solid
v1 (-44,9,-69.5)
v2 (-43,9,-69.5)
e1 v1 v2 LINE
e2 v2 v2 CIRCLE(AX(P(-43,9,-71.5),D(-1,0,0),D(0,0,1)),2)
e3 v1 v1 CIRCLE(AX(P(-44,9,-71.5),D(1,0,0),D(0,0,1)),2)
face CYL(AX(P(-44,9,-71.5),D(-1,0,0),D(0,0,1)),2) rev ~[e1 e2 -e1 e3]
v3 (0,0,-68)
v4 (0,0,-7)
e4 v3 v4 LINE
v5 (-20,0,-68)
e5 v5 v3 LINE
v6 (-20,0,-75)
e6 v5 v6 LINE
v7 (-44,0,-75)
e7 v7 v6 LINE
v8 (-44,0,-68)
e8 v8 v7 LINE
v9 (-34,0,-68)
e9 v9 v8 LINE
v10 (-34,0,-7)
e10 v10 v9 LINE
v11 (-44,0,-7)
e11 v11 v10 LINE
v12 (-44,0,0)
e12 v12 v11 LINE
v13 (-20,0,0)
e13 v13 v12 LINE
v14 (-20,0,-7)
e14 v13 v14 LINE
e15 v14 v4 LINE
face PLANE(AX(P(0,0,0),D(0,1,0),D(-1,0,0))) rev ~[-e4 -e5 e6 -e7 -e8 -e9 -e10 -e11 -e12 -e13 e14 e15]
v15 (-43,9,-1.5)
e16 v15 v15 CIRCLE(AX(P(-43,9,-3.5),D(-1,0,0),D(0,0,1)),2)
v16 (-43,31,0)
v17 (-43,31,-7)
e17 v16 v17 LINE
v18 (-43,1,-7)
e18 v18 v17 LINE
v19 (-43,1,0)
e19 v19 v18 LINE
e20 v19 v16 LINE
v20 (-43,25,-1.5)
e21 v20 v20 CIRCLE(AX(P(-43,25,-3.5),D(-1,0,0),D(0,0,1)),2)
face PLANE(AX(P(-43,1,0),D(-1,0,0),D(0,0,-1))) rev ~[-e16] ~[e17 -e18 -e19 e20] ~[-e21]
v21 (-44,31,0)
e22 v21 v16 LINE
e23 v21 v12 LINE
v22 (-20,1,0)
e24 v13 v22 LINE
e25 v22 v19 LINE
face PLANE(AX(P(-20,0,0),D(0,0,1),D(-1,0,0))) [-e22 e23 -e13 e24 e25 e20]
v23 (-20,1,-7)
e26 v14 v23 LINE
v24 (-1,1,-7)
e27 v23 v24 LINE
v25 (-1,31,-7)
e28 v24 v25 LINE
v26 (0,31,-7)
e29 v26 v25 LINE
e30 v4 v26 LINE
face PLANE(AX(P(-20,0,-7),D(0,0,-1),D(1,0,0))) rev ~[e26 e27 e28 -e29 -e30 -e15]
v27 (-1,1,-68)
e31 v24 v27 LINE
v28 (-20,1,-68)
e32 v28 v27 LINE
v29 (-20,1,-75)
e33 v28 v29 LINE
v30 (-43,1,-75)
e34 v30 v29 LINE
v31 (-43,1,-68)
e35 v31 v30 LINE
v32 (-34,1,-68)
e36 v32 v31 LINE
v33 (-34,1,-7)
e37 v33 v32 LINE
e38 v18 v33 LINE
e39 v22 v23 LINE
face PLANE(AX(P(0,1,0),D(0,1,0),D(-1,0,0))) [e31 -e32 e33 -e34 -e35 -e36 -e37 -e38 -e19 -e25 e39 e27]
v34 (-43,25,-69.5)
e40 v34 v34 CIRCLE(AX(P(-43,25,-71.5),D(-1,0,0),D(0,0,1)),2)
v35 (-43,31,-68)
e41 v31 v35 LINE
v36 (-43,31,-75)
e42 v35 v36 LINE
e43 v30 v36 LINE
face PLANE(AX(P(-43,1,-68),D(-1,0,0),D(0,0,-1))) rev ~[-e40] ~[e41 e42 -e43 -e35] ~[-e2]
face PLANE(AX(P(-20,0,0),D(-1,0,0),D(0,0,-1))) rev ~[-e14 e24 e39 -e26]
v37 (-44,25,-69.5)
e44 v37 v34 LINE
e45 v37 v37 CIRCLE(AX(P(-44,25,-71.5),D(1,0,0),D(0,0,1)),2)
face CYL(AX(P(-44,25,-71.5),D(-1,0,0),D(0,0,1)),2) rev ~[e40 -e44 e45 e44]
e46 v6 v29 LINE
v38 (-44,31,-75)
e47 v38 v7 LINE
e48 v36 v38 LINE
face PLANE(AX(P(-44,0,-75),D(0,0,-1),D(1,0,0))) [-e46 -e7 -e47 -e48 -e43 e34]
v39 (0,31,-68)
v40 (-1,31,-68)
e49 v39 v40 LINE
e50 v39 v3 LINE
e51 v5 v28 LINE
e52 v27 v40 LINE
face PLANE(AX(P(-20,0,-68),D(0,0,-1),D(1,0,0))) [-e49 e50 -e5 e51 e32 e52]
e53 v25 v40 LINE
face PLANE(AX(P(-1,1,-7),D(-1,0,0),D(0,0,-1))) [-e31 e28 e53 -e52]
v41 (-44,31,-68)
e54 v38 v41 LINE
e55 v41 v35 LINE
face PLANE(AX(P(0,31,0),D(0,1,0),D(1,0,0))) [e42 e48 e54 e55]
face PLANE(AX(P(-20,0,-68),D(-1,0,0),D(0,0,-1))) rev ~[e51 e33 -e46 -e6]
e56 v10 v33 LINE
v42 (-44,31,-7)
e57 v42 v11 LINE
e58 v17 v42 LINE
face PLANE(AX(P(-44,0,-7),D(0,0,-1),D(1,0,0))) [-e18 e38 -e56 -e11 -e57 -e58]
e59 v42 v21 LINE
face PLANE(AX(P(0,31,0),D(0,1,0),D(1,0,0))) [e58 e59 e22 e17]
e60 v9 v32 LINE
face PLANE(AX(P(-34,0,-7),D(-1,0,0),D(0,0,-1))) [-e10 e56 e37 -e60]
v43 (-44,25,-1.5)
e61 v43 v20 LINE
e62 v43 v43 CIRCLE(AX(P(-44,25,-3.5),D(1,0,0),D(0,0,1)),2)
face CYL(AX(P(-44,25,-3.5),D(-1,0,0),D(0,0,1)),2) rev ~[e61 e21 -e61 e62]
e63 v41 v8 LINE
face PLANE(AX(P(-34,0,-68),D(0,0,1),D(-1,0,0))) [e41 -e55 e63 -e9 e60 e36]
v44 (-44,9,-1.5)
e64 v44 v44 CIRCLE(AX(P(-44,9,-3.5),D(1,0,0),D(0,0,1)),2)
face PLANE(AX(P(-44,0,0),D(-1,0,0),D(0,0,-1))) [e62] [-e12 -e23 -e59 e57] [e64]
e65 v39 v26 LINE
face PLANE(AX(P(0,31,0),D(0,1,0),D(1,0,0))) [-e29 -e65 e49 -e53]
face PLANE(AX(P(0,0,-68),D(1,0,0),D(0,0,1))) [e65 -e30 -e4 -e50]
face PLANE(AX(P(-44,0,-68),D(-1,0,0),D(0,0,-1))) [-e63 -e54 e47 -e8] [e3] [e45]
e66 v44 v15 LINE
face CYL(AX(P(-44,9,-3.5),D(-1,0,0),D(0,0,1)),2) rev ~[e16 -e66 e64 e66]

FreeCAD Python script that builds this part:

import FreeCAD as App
import Part
import Sketcher

V = App.Vector


def add_polygon(sketch, points):
    """Adds a closed chain of lines whose ends are joined by coincident constraints."""
    first, n = sketch.GeometryCount, len(points)
    for a, b in zip(points, points[1:] + points[:1]):
        sketch.addGeometry(Part.LineSegment(App.Vector(*a, 0), App.Vector(*b, 0)), False)
    for i in range(n):
        sketch.addConstraint(Sketcher.Constraint("Coincident", first + i, 2, first + (i + 1) % n, 1))

doc = App.newDocument("Part")
body = doc.addObject("PartDesign::Body", "Body")

# Sketch on XZ plane
sketch1 = doc.addObject("Sketcher::SketchObject", "Sketch")
body.addObject(sketch1)
sketch1.AttachmentSupport = (doc.XZ_Plane, [""])
sketch1.MapMode = "FlatFace"
add_polygon(sketch1, [(-44, 0), (-20, 0), (-20, -7), (0, -7), (0, -68), (-20, -68), (-20, -75), (-44, -75), (-44, -68), (-34, -68), (-34, -7), (-44, -7)])  # lines 0-11
sketch1.addConstraint([
    Sketcher.Constraint("Horizontal", 0),
    Sketcher.Constraint("Vertical", 1),
    Sketcher.Constraint("Horizontal", 2),
    Sketcher.Constraint("Vertical", 3),
    Sketcher.Constraint("Horizontal", 4),
    Sketcher.Constraint("Vertical", 5),
    Sketcher.Constraint("Horizontal", 6),
    Sketcher.Constraint("Vertical", 7),
    Sketcher.Constraint("Horizontal", 8),
    Sketcher.Constraint("Vertical", 9),
    Sketcher.Constraint("Horizontal", 10),
    Sketcher.Constraint("Vertical", 11),
    Sketcher.Constraint("PointOnObject", 0, 2, -1),
    Sketcher.Constraint("PointOnObject", 2, 2, -2),
    Sketcher.Constraint("Horizontal", 4, 2, 7, 2),
    Sketcher.Constraint("Horizontal", 2, 2, 9, 2),
    Sketcher.Constraint("Vertical", 1, 2, 4, 2),
    Sketcher.Constraint("Vertical", 7, 2, 10, 2),
    Sketcher.Constraint("Equal", 1, 5),
    Sketcher.Constraint("DistanceX", 2, 1, 2, 2, 20.0),
    Sketcher.Constraint("DistanceX", 8, 1, 8, 2, 10.0),
    Sketcher.Constraint("DistanceY", 1, 2, 1, 1, 7.0),
    Sketcher.Constraint("DistanceY", 3, 2, 3, 1, 61.0),
    Sketcher.Constraint("DistanceX", 6, 2, -1, 1, 44.0),
])
pad1 = doc.addObject("PartDesign::Pad", "Pad")
body.addObject(pad1)
pad1.Profile = sketch1
pad1.Length = 1
pad1.Reversed = True

# Sketch on XZ plane
sketch2 = doc.addObject("Sketcher::SketchObject", "Sketch001")
body.addObject(sketch2)
sketch2.AttachmentSupport = (doc.XZ_Plane, [""])
sketch2.MapMode = "FlatFace"
sketch2.AttachmentOffset = App.Placement(V(0, 0, -1), App.Rotation())
add_polygon(sketch2, [(0, -7), (0, -68), (-1, -68), (-1, -7)])  # lines 0-3
add_polygon(sketch2, [(-43, -68), (-43, -75), (-44, -75), (-44, -68)])  # lines 4-7
add_polygon(sketch2, [(-43, 0), (-43, -7), (-44, -7), (-44, 0)])  # lines 8-11
sketch2.addConstraint([
    Sketcher.Constraint("Vertical", 0),
    Sketcher.Constraint("Horizontal", 1),
    Sketcher.Constraint("Vertical", 2),
    Sketcher.Constraint("Horizontal", 3),
    Sketcher.Constraint("Vertical", 4),
    Sketcher.Constraint("Horizontal", 5),
    Sketcher.Constraint("Vertical", 6),
    Sketcher.Constraint("Horizontal", 7),
    Sketcher.Constraint("Vertical", 8),
    Sketcher.Constraint("Horizontal", 9),
    Sketcher.Constraint("Vertical", 10),
    Sketcher.Constraint("Horizontal", 11),
    Sketcher.Constraint("PointOnObject", 0, 2, -2),
    Sketcher.Constraint("PointOnObject", 10, 2, -1),
    Sketcher.Constraint("Horizontal", 1, 2, 6, 2),
    Sketcher.Constraint("Horizontal", 3, 2, 8, 2),
    Sketcher.Constraint("Vertical", 7, 2, 8, 2),
    Sketcher.Constraint("Vertical", 6, 2, 9, 2),
    Sketcher.Constraint("Equal", 3, 5),
    Sketcher.Constraint("Equal", 6, 8),
    Sketcher.Constraint("DistanceX", 1, 2, 1, 1, 1.0),
    Sketcher.Constraint("DistanceY", 0, 2, 0, 1, 61.0),
    Sketcher.Constraint("DistanceY", 4, 2, 4, 1, 7.0),
    Sketcher.Constraint("DistanceX", 4, 2, -1, 1, 43.0),
])
pad2 = doc.addObject("PartDesign::Pad", "Pad001")
body.addObject(pad2)
pad2.Profile = sketch2
pad2.Length = 30
pad2.Reversed = True

# Sketch on YZ plane
sketch3 = doc.addObject("Sketcher::SketchObject", "Sketch002")
body.addObject(sketch3)
sketch3.AttachmentSupport = (doc.YZ_Plane, [""])
sketch3.MapMode = "FlatFace"
sketch3.AttachmentOffset = App.Placement(V(0, 0, -44), App.Rotation())
sketch3.addGeometry([
    Part.Circle(V(25, -3.5, 0), V(0, 0, 1), 2),
    Part.Circle(V(9, -3.5, 0), V(0, 0, 1), 2),
], False)
sketch3.addConstraint([
    Sketcher.Constraint("Equal", 0, 1),
    Sketcher.Constraint("Horizontal", 0, 3, 1, 3),
    Sketcher.Constraint("Diameter", 0, 4.0),
    Sketcher.Constraint("DistanceX", 1, 3, 0, 3, 16.0),
    Sketcher.Constraint("DistanceX", -1, 1, 0, 3, 25.0),
    Sketcher.Constraint("DistanceY", 0, 3, -1, 1, 3.5),
])
pocket1 = doc.addObject("PartDesign::Pocket", "Pocket")
body.addObject(pocket1)
pocket1.Profile = sketch3
pocket1.Length = 30
pocket1.Reversed = True

# Sketch on YZ plane
sketch4 = doc.addObject("Sketcher::SketchObject", "Sketch003")
body.addObject(sketch4)
sketch4.AttachmentSupport = (doc.YZ_Plane, [""])
sketch4.MapMode = "FlatFace"
sketch4.AttachmentOffset = App.Placement(V(0, 0, -44), App.Rotation())
sketch4.addGeometry([
    Part.Circle(V(25, -71.5, 0), V(0, 0, 1), 2),
    Part.Circle(V(9, -71.5, 0), V(0, 0, 1), 2),
], False)
sketch4.addConstraint([
    Sketcher.Constraint("Equal", 0, 1),
    Sketcher.Constraint("Horizontal", 0, 3, 1, 3),
    Sketcher.Constraint("Diameter", 0, 4.0),
    Sketcher.Constraint("DistanceX", 1, 3, 0, 3, 16.0),
    Sketcher.Constraint("DistanceX", -1, 1, 0, 3, 25.0),
    Sketcher.Constraint("DistanceY", 0, 3, -1, 1, 71.5),
])
pocket2 = doc.addObject("PartDesign::Pocket", "Pocket001")
body.addObject(pocket2)
pocket2.Profile = sketch4
pocket2.Length = 30
pocket2.Reversed = True

doc.recompute()
